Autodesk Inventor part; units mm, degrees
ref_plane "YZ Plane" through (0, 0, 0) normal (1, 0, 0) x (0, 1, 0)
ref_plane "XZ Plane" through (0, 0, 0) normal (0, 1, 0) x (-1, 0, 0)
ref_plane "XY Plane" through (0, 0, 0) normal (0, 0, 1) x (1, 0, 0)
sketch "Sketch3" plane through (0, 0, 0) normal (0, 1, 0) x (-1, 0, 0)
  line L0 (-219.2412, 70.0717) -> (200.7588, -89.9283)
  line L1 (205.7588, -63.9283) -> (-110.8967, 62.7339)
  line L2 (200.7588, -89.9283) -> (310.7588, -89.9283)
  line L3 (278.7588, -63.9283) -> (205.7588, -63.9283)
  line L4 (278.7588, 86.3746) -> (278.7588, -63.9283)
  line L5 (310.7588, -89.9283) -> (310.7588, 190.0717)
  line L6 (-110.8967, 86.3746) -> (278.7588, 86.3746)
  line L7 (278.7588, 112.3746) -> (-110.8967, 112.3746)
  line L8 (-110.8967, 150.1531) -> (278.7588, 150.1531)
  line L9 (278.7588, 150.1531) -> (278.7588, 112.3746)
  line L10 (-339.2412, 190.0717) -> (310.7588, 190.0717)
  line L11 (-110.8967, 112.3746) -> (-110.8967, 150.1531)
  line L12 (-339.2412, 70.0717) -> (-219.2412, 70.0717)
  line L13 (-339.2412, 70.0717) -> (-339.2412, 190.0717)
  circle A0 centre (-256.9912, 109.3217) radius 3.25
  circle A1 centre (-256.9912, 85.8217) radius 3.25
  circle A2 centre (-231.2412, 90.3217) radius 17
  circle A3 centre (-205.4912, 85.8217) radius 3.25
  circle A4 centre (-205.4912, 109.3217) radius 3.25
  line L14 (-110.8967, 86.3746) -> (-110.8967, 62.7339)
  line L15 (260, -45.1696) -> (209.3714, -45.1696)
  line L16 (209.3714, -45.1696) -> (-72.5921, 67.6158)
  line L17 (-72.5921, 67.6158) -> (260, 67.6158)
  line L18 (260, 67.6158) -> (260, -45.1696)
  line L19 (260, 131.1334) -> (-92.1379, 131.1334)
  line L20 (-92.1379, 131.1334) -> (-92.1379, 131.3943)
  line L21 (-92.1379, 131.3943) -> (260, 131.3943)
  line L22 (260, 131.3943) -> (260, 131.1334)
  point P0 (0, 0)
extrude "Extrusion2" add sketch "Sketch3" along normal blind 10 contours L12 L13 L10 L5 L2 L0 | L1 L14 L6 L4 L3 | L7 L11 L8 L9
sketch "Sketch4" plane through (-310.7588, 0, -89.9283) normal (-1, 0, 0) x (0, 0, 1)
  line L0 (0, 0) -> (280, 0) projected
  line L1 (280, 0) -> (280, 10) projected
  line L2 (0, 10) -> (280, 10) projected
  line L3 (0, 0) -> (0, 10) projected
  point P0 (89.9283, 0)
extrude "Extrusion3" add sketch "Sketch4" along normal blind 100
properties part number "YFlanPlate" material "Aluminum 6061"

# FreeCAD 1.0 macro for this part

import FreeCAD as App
import Part
import Sketcher
from FreeCAD import Vector
Q = App.Units.Quantity

doc = App.newDocument("Part")
body = doc.addObject("PartDesign::Body", "Body")

sketch1 = body.newObject("Sketcher::SketchObject", "Sketch")
sketch1.AttachmentSupport = (doc.getObject("XZ_Plane"), [""])
sketch1.MapMode = "FlatFace"
sketch1.addGeometry([
    Part.LineSegment(Vector(339.24, 70.07, 0), Vector(219.24, 70.07, 0)),
    Part.LineSegment(Vector(219.24, 70.07, 0), Vector(-200.76, -89.93, 0)),
    Part.LineSegment(Vector(-200.76, -89.93, 0), Vector(-310.76, -89.93, 0)),
    Part.LineSegment(Vector(-310.76, -89.93, 0), Vector(-310.76, 190.07, 0)),
    Part.LineSegment(Vector(-310.76, 190.07, 0), Vector(339.24, 190.07, 0)),
    Part.LineSegment(Vector(339.24, 190.07, 0), Vector(339.24, 70.07, 0)),
    Part.Circle(Vector(256.99, 85.82, 0), Vector(0, 0, 1), 3.25),
    Part.Circle(Vector(231.24, 90.32, 0), Vector(0, 0, 1), 17),
    Part.Circle(Vector(205.49, 85.82, 0), Vector(0, 0, 1), 3.25),
    Part.Circle(Vector(256.99, 109.32, 0), Vector(0, 0, 1), 3.25),
    Part.Circle(Vector(205.49, 109.32, 0), Vector(0, 0, 1), 3.25),
    Part.LineSegment(Vector(-260, -45.17, 0), Vector(-209.37, -45.17, 0)),
    Part.LineSegment(Vector(-209.37, -45.17, 0), Vector(72.59, 67.62, 0)),
    Part.LineSegment(Vector(72.59, 67.62, 0), Vector(-260, 67.62, 0)),
    Part.LineSegment(Vector(-260, 67.62, 0), Vector(-260, -45.17, 0)),
    Part.LineSegment(Vector(-260, 131.39, 0), Vector(-260, 131.13, 0)),
    Part.LineSegment(Vector(-260, 131.13, 0), Vector(92.14, 131.13, 0)),
    Part.LineSegment(Vector(92.14, 131.13, 0), Vector(92.14, 131.39, 0)),
    Part.LineSegment(Vector(92.14, 131.39, 0), Vector(-260, 131.39, 0)),
], False)
sketch1.addConstraint([
    Sketcher.Constraint("Coincident", 0, 2, 1, 1),
    Sketcher.Constraint("Coincident", 1, 2, 2, 1),
    Sketcher.Constraint("Coincident", 2, 2, 3, 1),
    Sketcher.Constraint("Coincident", 3, 2, 4, 1),
    Sketcher.Constraint("Coincident", 4, 2, 5, 1),
    Sketcher.Constraint("Coincident", 5, 2, 0, 1),
    Sketcher.Constraint("Coincident", 11, 2, 12, 1),
    Sketcher.Constraint("Coincident", 12, 2, 13, 1),
    Sketcher.Constraint("Coincident", 13, 2, 14, 1),
    Sketcher.Constraint("Coincident", 14, 2, 11, 1),
    Sketcher.Constraint("Coincident", 15, 2, 16, 1),
    Sketcher.Constraint("Coincident", 16, 2, 17, 1),
    Sketcher.Constraint("Coincident", 17, 2, 18, 1),
    Sketcher.Constraint("Coincident", 18, 2, 15, 1),
    Sketcher.Constraint("Horizontal", 0),
    Sketcher.Constraint("Horizontal", 2),
    Sketcher.Constraint("Vertical", 3),
    Sketcher.Constraint("Horizontal", 4),
    Sketcher.Constraint("Vertical", 5),
    Sketcher.Constraint("Horizontal", 11),
    Sketcher.Constraint("Horizontal", 13),
    Sketcher.Constraint("Vertical", 14),
    Sketcher.Constraint("Vertical", 15),
    Sketcher.Constraint("Horizontal", 16),
    Sketcher.Constraint("Vertical", 17),
    Sketcher.Constraint("Horizontal", 18),
    Sketcher.Constraint("Equal", 6, 8),
    Sketcher.Constraint("Equal", 8, 9),
    Sketcher.Constraint("Equal", 9, 10),
    Sketcher.Constraint("Horizontal", 6, 3, 8, 3),
    Sketcher.Constraint("Horizontal", 9, 3, 10, 3),
    Sketcher.Constraint("Vertical", 6, 3, 9, 3),
    Sketcher.Constraint("Vertical", 8, 3, 10, 3),
    Sketcher.Constraint("Vertical", 14, 2, 15, 2),
    Sketcher.Constraint("Equal", 0, 5),
    Sketcher.Constraint("Diameter", 7, Q("34 mm")),
    Sketcher.Constraint("Diameter", 6, Q("6.5 mm")),
    Sketcher.Constraint("DistanceX", 0, 2, 0, 1, Q("120 mm")),
    Sketcher.Constraint("DistanceX", 2, 2, 2, 1, Q("110 mm")),
    Sketcher.Constraint("DistanceX", 4, 1, 4, 2, Q("650 mm")),
    Sketcher.Constraint("DistanceY", 3, 1, 3, 2, Q("280 mm")),
    Sketcher.Constraint("DistanceX", 13, 2, -1, 1, Q("260 mm")),
    Sketcher.Constraint("DistanceY", 7, 3, 9, 3, Q("19 mm")),
    Sketcher.Constraint("DistanceX", 0, 2, 7, 3, Q("12 mm")),
    Sketcher.Constraint("DistanceY", 6, 3, 7, 3, Q("4.5 mm")),
    Sketcher.Constraint("DistanceX", 8, 3, 6, 3, Q("51.5 mm")),
    Sketcher.Constraint("DistanceX", 13, 2, 13, 1, Q("332.592 mm")),
    Sketcher.Constraint("DistanceX", 16, 1, 16, 2, Q("352.138 mm")),
    Sketcher.Constraint("DistanceY", 15, 2, 15, 1, Q("0.261 mm")),
    Sketcher.Constraint("DistanceX", 7, 3, 6, 3, Q("25.75 mm")),
    Sketcher.Constraint("DistanceY", 0, 2, 8, 3, Q("15.75 mm")),
    Sketcher.Constraint("Distance", 12, Q("303.684 mm")),
    Sketcher.Constraint("DistanceX", 11, 1, 11, 2, Q("50.6286 mm")),
    Sketcher.Constraint("DistanceX", 12, 2, 8, 3, Q("132.899 mm")),
    Sketcher.Constraint("DistanceY", 12, 2, 8, 3, Q("18.206 mm")),
    Sketcher.Constraint("DistanceY", 14, 2, 15, 2, Q("176.303 mm")),
    Sketcher.Constraint("DistanceY", -1, 1, 6, 3, Q("85.8217 mm")),
])
pad1 = body.newObject("PartDesign::Pad", "Pad")
pad1.Profile = sketch1
pad1.Length = 10
pad1.Reversed = True

sketch2 = body.newObject("Sketcher::SketchObject", "Sketch001")
sketch2.AttachmentSupport = (doc.getObject("YZ_Plane"), [""])
sketch2.MapMode = "FlatFace"
sketch2.AttachmentOffset = App.Placement(Vector(0, 0, -310.7588), App.Rotation())
sketch2.addGeometry([
    Part.LineSegment(Vector(10, -90, 0), Vector(0, -90, 0)),
    Part.LineSegment(Vector(0, -90, 0), Vector(0, 190, 0)),
    Part.LineSegment(Vector(0, 190, 0), Vector(10, 190, 0)),
    Part.LineSegment(Vector(10, 190, 0), Vector(10, -90, 0)),
], False)
sketch2.addConstraint([
    Sketcher.Constraint("Coincident", 0, 2, 1, 1),
    Sketcher.Constraint("Coincident", 1, 2, 2, 1),
    Sketcher.Constraint("Coincident", 2, 2, 3, 1),
    Sketcher.Constraint("Coincident", 3, 2, 0, 1),
    Sketcher.Constraint("Horizontal", 0),
    Sketcher.Constraint("Vertical", 1),
    Sketcher.Constraint("Horizontal", 2),
    Sketcher.Constraint("Vertical", 3),
    Sketcher.Constraint("PointOnObject", 0, 2, -2),
    Sketcher.Constraint("DistanceX", 0, 2, 0, 1, Q("10 mm")),
    Sketcher.Constraint("DistanceY", 1, 1, 1, 2, Q("280 mm")),
    Sketcher.Constraint("DistanceY", 0, 2, -1, 1, Q("89.9283 mm")),
])
pad2 = body.newObject("PartDesign::Pad", "Pad001")
pad2.Profile = sketch2
pad2.Length = 100
pad2.Reversed = True

doc.recompute()
